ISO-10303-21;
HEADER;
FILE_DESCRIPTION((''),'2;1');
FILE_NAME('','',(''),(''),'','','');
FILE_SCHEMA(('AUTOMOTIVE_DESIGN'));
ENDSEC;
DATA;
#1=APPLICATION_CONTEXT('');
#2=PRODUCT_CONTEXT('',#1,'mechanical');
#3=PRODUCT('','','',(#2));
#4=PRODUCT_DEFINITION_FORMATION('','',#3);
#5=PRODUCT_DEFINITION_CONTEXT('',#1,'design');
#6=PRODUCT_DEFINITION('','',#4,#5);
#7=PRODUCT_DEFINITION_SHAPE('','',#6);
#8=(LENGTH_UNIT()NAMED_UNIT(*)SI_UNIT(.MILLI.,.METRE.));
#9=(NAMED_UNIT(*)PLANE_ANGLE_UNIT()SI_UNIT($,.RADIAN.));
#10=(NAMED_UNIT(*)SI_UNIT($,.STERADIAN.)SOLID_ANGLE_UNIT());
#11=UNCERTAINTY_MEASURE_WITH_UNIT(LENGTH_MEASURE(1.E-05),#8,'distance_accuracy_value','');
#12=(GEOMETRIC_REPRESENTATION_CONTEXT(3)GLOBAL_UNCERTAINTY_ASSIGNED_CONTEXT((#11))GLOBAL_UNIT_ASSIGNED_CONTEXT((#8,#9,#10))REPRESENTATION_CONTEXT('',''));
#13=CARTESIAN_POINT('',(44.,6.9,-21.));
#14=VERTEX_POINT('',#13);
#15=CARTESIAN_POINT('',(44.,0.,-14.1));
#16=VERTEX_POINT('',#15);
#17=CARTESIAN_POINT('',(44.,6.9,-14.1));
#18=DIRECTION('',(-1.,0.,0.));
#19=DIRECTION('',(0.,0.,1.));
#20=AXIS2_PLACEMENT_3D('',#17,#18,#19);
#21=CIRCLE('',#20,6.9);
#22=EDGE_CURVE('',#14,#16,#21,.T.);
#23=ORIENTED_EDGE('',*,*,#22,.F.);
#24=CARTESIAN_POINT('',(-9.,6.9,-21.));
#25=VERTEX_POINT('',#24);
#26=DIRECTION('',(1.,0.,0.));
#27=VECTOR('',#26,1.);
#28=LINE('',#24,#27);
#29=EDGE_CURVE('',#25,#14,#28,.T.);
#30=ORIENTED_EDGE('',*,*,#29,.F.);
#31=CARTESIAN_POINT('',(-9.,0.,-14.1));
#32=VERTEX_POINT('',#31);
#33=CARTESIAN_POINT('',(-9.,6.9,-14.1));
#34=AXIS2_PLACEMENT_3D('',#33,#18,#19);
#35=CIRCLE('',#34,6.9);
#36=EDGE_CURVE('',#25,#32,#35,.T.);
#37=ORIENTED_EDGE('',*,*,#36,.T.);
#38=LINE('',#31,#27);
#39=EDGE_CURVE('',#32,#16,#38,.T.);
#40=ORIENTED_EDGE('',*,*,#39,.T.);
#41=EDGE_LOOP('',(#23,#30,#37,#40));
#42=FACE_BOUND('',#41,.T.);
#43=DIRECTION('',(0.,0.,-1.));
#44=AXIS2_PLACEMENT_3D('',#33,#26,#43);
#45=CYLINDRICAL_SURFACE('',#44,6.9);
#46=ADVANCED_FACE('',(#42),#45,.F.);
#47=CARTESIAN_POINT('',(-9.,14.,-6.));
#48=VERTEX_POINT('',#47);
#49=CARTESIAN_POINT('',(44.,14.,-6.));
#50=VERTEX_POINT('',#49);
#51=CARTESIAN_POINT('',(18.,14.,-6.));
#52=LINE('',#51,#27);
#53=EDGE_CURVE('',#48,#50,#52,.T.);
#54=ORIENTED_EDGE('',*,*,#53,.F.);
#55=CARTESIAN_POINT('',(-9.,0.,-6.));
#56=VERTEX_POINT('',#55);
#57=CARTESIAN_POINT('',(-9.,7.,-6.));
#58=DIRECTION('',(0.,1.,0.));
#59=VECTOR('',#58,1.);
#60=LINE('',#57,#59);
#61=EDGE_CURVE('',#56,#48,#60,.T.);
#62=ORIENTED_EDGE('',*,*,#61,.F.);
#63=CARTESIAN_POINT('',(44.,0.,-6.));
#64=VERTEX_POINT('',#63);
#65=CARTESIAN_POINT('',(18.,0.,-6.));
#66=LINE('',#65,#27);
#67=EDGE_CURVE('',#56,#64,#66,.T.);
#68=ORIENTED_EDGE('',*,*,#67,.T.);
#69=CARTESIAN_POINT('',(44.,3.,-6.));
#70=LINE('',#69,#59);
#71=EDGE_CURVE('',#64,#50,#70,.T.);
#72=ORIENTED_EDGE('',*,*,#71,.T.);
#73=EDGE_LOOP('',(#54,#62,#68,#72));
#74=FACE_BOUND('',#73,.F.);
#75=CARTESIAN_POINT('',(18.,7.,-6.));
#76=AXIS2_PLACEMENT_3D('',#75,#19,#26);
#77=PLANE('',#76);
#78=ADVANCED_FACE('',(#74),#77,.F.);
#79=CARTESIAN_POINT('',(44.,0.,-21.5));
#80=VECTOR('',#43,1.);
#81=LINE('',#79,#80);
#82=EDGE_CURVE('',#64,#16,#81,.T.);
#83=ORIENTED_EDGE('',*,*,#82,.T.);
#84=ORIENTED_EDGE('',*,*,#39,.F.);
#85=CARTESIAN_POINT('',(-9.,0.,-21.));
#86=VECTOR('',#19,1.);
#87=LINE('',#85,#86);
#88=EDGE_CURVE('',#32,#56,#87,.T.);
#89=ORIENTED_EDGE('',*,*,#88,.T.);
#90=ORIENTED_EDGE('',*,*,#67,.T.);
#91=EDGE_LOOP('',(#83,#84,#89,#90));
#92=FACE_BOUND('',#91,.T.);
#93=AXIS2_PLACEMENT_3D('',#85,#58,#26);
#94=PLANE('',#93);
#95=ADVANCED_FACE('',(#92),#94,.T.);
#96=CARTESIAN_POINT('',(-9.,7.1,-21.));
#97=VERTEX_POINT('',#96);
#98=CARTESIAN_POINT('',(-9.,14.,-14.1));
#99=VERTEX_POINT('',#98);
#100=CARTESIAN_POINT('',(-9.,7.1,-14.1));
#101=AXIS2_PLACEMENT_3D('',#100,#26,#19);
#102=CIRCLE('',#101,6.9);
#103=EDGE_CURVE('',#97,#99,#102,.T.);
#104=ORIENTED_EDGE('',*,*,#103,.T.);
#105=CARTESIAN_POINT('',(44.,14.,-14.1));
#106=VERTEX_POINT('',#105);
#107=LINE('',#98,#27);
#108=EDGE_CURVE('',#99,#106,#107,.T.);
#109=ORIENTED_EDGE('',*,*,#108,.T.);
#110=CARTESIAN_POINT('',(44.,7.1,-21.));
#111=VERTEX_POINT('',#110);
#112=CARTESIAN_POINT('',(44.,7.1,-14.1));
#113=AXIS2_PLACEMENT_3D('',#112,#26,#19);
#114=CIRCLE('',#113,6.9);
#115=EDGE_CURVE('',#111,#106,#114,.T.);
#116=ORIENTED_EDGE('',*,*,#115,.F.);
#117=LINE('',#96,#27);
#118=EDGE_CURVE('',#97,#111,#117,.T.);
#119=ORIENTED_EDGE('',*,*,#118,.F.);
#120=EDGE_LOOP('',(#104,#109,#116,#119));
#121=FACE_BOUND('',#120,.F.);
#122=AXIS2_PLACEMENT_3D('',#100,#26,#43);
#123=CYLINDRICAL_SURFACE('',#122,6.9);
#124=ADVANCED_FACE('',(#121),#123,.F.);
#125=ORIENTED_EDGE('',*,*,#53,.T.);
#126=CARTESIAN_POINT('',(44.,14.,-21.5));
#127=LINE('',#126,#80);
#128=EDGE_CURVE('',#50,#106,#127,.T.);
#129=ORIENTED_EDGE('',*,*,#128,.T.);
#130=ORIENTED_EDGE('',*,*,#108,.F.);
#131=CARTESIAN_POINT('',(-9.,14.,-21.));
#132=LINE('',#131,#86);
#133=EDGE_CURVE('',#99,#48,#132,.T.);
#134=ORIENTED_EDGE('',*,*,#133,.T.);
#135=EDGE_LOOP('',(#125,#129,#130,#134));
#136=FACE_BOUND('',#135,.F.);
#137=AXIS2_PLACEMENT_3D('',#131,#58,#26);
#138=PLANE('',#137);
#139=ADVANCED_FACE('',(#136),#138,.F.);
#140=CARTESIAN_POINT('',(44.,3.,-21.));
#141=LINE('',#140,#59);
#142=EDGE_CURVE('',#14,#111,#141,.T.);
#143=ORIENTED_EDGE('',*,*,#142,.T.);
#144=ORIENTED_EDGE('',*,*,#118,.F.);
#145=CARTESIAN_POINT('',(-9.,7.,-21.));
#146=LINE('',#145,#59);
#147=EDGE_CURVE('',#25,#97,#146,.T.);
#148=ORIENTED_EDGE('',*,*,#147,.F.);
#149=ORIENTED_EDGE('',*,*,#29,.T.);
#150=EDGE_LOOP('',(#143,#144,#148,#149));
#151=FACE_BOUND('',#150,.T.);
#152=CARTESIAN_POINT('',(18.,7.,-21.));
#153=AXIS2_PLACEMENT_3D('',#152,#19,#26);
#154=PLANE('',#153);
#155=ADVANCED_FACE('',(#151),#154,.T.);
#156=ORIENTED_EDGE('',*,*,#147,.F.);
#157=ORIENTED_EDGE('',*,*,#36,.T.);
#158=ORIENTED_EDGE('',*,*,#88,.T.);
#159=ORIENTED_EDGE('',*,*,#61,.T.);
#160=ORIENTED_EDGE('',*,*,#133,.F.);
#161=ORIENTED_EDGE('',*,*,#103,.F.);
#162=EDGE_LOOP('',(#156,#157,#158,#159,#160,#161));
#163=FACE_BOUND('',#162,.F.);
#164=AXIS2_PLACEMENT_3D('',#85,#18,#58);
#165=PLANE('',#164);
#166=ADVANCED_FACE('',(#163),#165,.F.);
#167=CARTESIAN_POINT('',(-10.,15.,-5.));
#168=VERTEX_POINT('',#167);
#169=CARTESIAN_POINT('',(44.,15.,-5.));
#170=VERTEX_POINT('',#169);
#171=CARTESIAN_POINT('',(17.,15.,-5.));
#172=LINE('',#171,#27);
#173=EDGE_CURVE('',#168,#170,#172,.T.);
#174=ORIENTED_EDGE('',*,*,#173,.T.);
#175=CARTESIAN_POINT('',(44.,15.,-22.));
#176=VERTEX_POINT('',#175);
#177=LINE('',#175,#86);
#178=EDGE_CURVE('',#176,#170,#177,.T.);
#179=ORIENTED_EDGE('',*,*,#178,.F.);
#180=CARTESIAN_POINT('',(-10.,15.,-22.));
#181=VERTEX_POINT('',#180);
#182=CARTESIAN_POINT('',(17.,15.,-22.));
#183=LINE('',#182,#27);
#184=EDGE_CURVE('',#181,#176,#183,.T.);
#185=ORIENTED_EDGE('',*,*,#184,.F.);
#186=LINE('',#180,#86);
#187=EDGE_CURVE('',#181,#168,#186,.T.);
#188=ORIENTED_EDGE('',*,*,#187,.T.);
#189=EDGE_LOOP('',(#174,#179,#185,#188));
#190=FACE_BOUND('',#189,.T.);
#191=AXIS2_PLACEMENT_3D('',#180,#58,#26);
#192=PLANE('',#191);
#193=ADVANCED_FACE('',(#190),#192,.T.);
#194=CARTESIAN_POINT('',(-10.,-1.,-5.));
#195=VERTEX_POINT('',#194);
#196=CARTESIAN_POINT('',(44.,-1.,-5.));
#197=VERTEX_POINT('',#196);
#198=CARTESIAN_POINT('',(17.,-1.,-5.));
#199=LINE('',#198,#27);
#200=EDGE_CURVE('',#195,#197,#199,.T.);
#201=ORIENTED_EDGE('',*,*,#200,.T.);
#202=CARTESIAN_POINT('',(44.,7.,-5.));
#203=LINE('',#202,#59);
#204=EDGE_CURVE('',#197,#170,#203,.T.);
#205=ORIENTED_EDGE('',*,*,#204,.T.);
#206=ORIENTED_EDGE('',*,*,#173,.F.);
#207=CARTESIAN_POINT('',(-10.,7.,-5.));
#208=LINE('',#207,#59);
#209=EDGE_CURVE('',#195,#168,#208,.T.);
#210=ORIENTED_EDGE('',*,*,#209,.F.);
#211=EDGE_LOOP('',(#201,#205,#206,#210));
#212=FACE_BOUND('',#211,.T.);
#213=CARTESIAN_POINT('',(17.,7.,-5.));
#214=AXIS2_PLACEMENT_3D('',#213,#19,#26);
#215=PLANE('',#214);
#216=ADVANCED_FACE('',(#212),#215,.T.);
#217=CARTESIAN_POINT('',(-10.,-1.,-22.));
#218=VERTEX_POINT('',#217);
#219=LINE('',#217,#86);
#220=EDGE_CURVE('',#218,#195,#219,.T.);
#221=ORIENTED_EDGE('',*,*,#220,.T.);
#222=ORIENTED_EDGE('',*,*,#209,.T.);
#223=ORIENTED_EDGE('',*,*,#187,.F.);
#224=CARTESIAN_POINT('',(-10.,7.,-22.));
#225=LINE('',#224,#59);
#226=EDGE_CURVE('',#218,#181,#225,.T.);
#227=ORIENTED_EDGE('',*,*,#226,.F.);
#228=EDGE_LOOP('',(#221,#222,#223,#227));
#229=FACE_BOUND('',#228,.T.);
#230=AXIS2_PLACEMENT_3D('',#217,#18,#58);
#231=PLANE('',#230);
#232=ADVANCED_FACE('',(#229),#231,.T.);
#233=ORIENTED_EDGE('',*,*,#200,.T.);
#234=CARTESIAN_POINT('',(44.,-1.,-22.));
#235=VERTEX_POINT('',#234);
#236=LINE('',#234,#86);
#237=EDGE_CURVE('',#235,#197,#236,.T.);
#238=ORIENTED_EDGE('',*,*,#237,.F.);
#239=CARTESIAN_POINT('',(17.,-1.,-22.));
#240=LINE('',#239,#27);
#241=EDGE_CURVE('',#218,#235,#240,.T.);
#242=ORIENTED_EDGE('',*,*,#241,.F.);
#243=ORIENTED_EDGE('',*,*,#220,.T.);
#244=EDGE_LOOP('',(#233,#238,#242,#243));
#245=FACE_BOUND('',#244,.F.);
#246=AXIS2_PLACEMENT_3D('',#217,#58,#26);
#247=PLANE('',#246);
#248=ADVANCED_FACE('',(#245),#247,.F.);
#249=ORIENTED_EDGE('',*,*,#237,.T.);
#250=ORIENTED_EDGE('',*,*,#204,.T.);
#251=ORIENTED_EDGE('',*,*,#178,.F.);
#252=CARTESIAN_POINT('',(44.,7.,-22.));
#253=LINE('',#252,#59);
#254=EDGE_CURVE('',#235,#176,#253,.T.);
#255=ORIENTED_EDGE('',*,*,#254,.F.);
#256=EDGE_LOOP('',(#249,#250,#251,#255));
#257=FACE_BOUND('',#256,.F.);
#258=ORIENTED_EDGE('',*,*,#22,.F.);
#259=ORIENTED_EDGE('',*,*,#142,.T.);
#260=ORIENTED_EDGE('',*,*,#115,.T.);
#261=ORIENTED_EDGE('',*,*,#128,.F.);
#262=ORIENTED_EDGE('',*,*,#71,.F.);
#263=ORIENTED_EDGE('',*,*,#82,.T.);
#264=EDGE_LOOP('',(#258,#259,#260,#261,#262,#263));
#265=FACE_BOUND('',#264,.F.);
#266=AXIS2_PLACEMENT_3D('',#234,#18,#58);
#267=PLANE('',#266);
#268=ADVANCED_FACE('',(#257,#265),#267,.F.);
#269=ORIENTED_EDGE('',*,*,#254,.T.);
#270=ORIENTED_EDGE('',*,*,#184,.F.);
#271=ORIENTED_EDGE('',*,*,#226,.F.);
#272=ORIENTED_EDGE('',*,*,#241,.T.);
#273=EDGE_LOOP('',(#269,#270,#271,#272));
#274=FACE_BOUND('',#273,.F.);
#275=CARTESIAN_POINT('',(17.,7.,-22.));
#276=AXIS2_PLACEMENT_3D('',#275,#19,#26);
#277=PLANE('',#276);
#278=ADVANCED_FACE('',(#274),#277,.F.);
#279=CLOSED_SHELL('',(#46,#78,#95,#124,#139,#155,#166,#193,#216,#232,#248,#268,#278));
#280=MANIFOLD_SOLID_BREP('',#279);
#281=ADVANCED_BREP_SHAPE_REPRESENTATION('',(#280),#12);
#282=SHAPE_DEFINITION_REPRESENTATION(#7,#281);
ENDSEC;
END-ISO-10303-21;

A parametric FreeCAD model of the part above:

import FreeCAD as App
import Part
import Sketcher
Q = App.Units.Quantity


def edges_at(feature, points):
    """Names of the edges that pass closest to the given points."""
    edges = feature.Shape.Edges
    near = lambda p: min(range(len(edges)), key=lambda i: edges[i].distToShape(Part.Vertex(*p))[0])
    return sorted({f"Edge{near(p) + 1}" for p in points})


def add_polygon(sketch, points):
    """Adds a closed chain of lines whose ends are joined by coincident constraints."""
    first, n = sketch.GeometryCount, len(points)
    for a, b in zip(points, points[1:] + points[:1]):
        sketch.addGeometry(Part.LineSegment(App.Vector(*a, 0), App.Vector(*b, 0)), False)
    for i in range(n):
        sketch.addConstraint(Sketcher.Constraint("Coincident", first + i, 2, first + (i + 1) % n, 1))

doc = App.newDocument("Part")
body = doc.addObject("PartDesign::Body", "Body")

# Sketch on XY plane
sketch1 = body.newObject("Sketcher::SketchObject", "Sketch")
sketch1.AttachmentSupport = (doc.getObject("XY_Plane"), [""])
sketch1.MapMode = "FlatFace"
sketch1.AttachmentOffset = App.Placement(App.Vector(0, 0, -21), App.Rotation())
add_polygon(sketch1, [(-9, 14), (-9, 0), (45, 0), (45, 14)])  # lines 0-3
sketch1.addConstraint([
    Sketcher.Constraint("Vertical", 0),
    Sketcher.Constraint("Horizontal", 1),
    Sketcher.Constraint("Vertical", 2),
    Sketcher.Constraint("Horizontal", 3),
    Sketcher.Constraint("PointOnObject", 0, 2, -1),
    Sketcher.Constraint("DistanceX", 1, 1, 1, 2, Q("54 mm")),
    Sketcher.Constraint("DistanceY", 0, 2, 0, 1, Q("14 mm")),
    Sketcher.Constraint("DistanceX", 0, 2, -1, 1, Q("9 mm")),
])
pad1 = body.newObject("PartDesign::Pad", "Pad")
pad1.Profile = sketch1
pad1.Length = 15
body2 = doc.addObject("PartDesign::Body", "Body001")

# Sketch on XY plane
sketch2 = body2.newObject("Sketcher::SketchObject", "Sketch001")
sketch2.AttachmentSupport = (doc.getObject("XY_Plane001"), [""])
sketch2.MapMode = "FlatFace"
sketch2.AttachmentOffset = App.Placement(App.Vector(0, 0, -22), App.Rotation())
add_polygon(sketch2, [(-10, 15), (-10, -1), (44, -1), (44, 15)])  # lines 0-3
sketch2.addConstraint([
    Sketcher.Constraint("Vertical", 0),
    Sketcher.Constraint("Horizontal", 1),
    Sketcher.Constraint("Vertical", 2),
    Sketcher.Constraint("Horizontal", 3),
    Sketcher.Constraint("DistanceX", 1, 1, 1, 2, Q("54 mm")),
    Sketcher.Constraint("DistanceY", 0, 2, 0, 1, Q("16 mm")),
    Sketcher.Constraint("DistanceX", 0, 2, -1, 1, Q("10 mm")),
    Sketcher.Constraint("DistanceY", 0, 2, -1, 1, Q("1 mm")),
])
pad2 = body2.newObject("PartDesign::Pad", "Pad001")
pad2.Profile = sketch2
pad2.Length = 17
doc.recompute()

boolean = body2.newObject("PartDesign::Boolean", "Boolean")
boolean.Type = "Cut"
boolean.addObjects([body])
doc.recompute()

fillet = body2.newObject("PartDesign::Fillet", "Fillet")
fillet.Base = (boolean, edges_at(boolean, [(17.5, 0, -21)]))
fillet.Radius = 6.9
doc.recompute()

fillet2 = body2.newObject("PartDesign::Fillet", "Fillet001")
fillet2.Base = (fillet, edges_at(fillet, [(17.5, 14, -21)]))
fillet2.Radius = 6.9

doc.recompute()
